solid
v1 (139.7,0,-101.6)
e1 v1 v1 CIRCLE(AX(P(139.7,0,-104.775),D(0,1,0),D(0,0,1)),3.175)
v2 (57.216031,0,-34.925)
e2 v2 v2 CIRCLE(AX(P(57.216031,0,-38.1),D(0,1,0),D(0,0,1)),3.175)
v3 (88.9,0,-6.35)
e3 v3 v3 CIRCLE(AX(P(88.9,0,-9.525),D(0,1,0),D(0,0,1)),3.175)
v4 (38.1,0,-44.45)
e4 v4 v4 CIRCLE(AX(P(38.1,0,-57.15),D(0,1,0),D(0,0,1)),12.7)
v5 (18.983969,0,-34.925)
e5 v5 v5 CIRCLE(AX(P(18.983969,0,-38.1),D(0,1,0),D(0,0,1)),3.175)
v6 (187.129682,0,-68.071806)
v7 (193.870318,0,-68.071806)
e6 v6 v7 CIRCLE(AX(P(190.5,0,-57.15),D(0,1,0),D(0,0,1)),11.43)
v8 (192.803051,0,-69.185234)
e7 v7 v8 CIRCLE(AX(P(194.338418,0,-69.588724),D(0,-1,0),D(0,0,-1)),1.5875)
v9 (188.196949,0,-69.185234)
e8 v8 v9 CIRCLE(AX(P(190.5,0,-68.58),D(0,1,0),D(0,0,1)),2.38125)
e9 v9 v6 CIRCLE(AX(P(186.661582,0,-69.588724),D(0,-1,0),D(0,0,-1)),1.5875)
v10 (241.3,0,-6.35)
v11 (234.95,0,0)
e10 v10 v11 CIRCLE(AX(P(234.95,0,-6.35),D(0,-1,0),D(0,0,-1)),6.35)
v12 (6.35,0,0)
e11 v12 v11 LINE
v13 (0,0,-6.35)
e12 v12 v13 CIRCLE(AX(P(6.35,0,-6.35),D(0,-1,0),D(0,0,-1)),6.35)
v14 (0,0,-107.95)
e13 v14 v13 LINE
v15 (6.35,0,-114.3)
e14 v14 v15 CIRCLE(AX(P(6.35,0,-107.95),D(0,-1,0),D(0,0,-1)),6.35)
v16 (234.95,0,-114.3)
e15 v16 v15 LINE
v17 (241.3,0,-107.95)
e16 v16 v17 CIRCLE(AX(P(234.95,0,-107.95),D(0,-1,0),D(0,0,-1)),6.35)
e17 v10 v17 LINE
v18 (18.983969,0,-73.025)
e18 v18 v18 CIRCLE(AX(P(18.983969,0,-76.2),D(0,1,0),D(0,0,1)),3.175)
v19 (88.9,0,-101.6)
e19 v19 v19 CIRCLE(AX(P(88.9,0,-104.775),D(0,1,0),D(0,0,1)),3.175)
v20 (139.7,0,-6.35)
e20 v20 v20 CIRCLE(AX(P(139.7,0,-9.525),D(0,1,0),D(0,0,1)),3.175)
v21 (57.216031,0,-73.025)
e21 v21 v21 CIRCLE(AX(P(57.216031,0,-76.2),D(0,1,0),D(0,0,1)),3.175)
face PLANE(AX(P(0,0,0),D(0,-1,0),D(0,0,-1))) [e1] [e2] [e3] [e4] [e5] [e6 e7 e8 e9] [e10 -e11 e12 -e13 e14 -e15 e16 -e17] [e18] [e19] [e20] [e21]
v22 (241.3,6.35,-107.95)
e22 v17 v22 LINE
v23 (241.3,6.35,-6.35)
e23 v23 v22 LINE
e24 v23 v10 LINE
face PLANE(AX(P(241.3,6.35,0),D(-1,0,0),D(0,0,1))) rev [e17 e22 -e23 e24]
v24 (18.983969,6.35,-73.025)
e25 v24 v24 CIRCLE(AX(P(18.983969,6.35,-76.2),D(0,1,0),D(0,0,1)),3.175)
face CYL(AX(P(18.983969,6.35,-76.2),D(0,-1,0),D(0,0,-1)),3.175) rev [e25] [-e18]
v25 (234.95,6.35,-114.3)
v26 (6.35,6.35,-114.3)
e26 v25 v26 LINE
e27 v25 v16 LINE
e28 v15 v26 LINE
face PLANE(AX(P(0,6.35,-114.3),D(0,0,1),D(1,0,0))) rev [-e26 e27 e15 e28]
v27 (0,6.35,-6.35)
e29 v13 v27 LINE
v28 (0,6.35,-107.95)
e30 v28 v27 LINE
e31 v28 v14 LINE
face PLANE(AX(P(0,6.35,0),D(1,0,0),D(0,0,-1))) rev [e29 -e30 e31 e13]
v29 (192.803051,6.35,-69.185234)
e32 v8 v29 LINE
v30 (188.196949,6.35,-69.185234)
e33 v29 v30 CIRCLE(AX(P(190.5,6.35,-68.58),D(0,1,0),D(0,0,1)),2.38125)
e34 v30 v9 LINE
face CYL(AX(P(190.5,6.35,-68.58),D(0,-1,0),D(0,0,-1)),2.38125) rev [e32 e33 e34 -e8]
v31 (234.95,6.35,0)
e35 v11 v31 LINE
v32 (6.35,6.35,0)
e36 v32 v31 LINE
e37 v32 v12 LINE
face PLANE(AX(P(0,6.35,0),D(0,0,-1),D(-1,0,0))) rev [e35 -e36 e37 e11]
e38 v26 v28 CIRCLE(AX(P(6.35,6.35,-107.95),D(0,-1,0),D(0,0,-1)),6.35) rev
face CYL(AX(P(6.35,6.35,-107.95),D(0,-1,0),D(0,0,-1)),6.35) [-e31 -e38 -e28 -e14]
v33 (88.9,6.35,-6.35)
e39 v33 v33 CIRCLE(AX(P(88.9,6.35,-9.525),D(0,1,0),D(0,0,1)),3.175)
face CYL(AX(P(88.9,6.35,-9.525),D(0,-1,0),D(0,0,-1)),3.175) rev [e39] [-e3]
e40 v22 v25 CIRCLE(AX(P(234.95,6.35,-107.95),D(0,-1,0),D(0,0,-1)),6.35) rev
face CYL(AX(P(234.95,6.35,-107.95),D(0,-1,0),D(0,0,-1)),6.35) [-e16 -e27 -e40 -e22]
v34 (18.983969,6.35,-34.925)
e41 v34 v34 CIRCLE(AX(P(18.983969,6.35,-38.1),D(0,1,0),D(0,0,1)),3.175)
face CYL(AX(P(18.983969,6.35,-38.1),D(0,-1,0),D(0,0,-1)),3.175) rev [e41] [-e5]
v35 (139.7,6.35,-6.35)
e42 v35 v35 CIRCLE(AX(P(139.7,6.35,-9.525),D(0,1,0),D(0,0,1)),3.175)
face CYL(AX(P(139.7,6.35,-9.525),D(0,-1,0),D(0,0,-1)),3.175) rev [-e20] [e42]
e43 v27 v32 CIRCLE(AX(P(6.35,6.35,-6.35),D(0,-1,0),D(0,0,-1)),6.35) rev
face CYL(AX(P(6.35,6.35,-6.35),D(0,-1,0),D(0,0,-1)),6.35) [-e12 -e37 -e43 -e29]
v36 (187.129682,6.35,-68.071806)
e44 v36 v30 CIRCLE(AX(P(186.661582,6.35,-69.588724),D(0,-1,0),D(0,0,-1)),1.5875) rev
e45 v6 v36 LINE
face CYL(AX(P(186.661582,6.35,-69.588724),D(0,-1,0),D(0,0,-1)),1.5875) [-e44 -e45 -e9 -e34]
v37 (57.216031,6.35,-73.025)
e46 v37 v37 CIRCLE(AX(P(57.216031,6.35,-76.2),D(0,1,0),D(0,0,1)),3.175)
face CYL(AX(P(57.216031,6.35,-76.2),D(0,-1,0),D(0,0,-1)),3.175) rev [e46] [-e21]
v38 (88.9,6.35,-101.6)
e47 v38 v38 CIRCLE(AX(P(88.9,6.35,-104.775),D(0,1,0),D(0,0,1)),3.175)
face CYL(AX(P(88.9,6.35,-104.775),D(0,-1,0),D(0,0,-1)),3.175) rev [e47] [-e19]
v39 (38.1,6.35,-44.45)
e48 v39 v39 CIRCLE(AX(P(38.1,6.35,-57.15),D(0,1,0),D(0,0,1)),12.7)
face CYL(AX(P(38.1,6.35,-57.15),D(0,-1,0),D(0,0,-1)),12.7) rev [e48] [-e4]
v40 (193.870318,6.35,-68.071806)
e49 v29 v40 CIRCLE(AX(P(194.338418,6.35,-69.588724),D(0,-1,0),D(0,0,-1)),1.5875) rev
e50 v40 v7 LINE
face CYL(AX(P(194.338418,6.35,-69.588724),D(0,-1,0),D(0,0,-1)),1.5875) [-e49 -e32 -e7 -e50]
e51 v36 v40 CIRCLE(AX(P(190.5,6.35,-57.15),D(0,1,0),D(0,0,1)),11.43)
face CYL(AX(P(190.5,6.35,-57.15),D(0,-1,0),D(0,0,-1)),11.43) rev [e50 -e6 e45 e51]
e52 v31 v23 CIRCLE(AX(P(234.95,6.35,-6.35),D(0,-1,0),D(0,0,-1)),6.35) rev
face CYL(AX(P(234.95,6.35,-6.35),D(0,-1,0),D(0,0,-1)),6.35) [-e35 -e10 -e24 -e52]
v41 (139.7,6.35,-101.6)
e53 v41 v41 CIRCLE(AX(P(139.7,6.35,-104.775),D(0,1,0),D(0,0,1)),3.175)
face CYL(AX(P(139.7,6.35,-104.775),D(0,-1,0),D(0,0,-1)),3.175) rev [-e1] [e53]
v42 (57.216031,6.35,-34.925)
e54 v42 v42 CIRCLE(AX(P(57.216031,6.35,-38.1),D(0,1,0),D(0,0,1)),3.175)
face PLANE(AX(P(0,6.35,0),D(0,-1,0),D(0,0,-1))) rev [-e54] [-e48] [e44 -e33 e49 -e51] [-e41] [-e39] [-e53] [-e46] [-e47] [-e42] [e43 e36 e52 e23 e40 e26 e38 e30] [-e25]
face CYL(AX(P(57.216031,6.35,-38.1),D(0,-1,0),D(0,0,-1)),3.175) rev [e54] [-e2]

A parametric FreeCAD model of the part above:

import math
import FreeCAD as App
import Part
import Sketcher
from FreeCAD import Vector
Q = App.Units.Quantity


def edges_at(feature, points):
    """Names of the edges that pass closest to the given points."""
    edges = feature.Shape.Edges
    near = lambda p: min(range(len(edges)), key=lambda i: edges[i].distToShape(Part.Vertex(*p))[0])
    return sorted({f"Edge{near(p) + 1}" for p in points})

doc = App.newDocument("Part")
params = doc.addObject("Spreadsheet::Sheet", "Params")
for row, (alias, value) in enumerate([
    ("sketch1_diameter", "1 in"),
    ("sketch1_diameter2", "0.25 in"),
    ("sketch1_radius", "0.45 in"),
    ("sketch1_width", "9.5 in"),
    ("sketch1_height", "4.5 in"),
    ("pad1_length", "0.25 in"),
    ("fillet_radius", "0.25 in"),
    ("fillet2_radius", "0.0625 in"),
], start=1):
    params.set(f"A{row}", alias)
    params.set(f"B{row}", "=" + value)
    params.setAlias(f"B{row}", alias)

body = doc.addObject("PartDesign::Body", "Body")

sketch1 = body.newObject("Sketcher::SketchObject", "Sketch")
sketch1.AttachmentSupport = (doc.getObject("XZ_Plane"), [""])
sketch1.MapMode = "FlatFace"
sketch1.addGeometry(Part.LineSegment(Vector(0, -114.3, 0), Vector(0, 0, 0)), False)
sketch1.addGeometry(Part.LineSegment(Vector(0, 0, 0), Vector(241.3, 0, 0)), False)
sketch1.addGeometry(Part.LineSegment(Vector(241.3, 0, 0), Vector(241.3, -114.3, 0)), False)
sketch1.addGeometry(Part.LineSegment(Vector(241.3, -114.3, 0), Vector(0, -114.3, 0)), False)
sketch1.addGeometry(Part.Circle(Vector(88.9, -9.5, 0), Vector(0, 0, 1), 3.2), False)
sketch1.addGeometry(Part.Circle(Vector(19, -38.1, 0), Vector(0, 0, 1), 3.2), False)
sketch1.addGeometry(Part.Circle(Vector(57.2, -38.1, 0), Vector(0, 0, 1), 3.2), False)
sketch1.addGeometry(Part.Circle(Vector(38.1, -57.1, 0), Vector(0, 0, 1), 12.7), False)
sketch1.addGeometry(Part.Circle(Vector(139.7, -9.5, 0), Vector(0, 0, 1), 3.2), False)
sketch1.addGeometry(Part.Circle(Vector(19, -76.2, 0), Vector(0, 0, 1), 3.2), False)
sketch1.addGeometry(Part.Circle(Vector(57.2, -76.2, 0), Vector(0, 0, 1), 3.2), False)
sketch1.addGeometry(Part.Circle(Vector(88.9, -104.8, 0), Vector(0, 0, 1), 3.2), False)
sketch1.addGeometry(Part.ArcOfCircle(Part.Circle(Vector(190.5, -57.1, 0), Vector(0, 0, 1), 11.4), math.radians(-78), math.radians(258)), False)
sketch1.addGeometry(Part.ArcOfCircle(Part.Circle(Vector(190.5, -68.6, 0), Vector(0, 0, 1), 2.4), math.radians(174), math.radians(366)), False)
sketch1.addGeometry(Part.Circle(Vector(139.7, -104.8, 0), Vector(0, 0, 1), 3.2), False)
sketch1.addConstraint(Sketcher.Constraint("Coincident", 0, 2, 1, 1))
sketch1.addConstraint(Sketcher.Constraint("Coincident", 1, 2, 2, 1))
sketch1.addConstraint(Sketcher.Constraint("Coincident", 2, 2, 3, 1))
sketch1.addConstraint(Sketcher.Constraint("Coincident", 3, 2, 0, 1))
sketch1.addConstraint(Sketcher.Constraint("Coincident", 12, 1, 13, 2))
sketch1.addConstraint(Sketcher.Constraint("Coincident", 13, 1, 12, 2))
sketch1.addConstraint(Sketcher.Constraint("Vertical", 0))
sketch1.addConstraint(Sketcher.Constraint("Horizontal", 1))
sketch1.addConstraint(Sketcher.Constraint("Vertical", 2))
sketch1.addConstraint(Sketcher.Constraint("Horizontal", 3))
sketch1.addConstraint(Sketcher.Constraint("Coincident", 0, 2, -1, 1))
sketch1.addConstraint(Sketcher.Constraint("Equal", 4, 5))
sketch1.addConstraint(Sketcher.Constraint("Equal", 5, 6))
sketch1.addConstraint(Sketcher.Constraint("Equal", 6, 8))
sketch1.addConstraint(Sketcher.Constraint("Equal", 8, 9))
sketch1.addConstraint(Sketcher.Constraint("Equal", 9, 10))
sketch1.addConstraint(Sketcher.Constraint("Equal", 10, 11))
sketch1.addConstraint(Sketcher.Constraint("Equal", 11, 14))
sketch1.addConstraint(Sketcher.Constraint("Horizontal", 5, 3, 6, 3))
sketch1.addConstraint(Sketcher.Constraint("Horizontal", 4, 3, 8, 3))
sketch1.addConstraint(Sketcher.Constraint("Horizontal", 9, 3, 10, 3))
sketch1.addConstraint(Sketcher.Constraint("Horizontal", 7, 3, 12, 3))
sketch1.addConstraint(Sketcher.Constraint("Horizontal", 11, 3, 14, 3))
sketch1.addConstraint(Sketcher.Constraint("Horizontal", 12, 1, 13, 1))
sketch1.addConstraint(Sketcher.Constraint("Vertical", 5, 3, 9, 3))
sketch1.addConstraint(Sketcher.Constraint("Vertical", 6, 3, 10, 3))
sketch1.addConstraint(Sketcher.Constraint("Vertical", 4, 3, 11, 3))
sketch1.addConstraint(Sketcher.Constraint("Vertical", 8, 3, 14, 3))
sketch1.addConstraint(Sketcher.Constraint("Diameter", 7, Q("1 in")))
sketch1.addConstraint(Sketcher.Constraint("Diameter", 4, Q("0.25 in")))
sketch1.addConstraint(Sketcher.Constraint("Radius", 12, Q("0.45 in")))
sketch1.addConstraint(Sketcher.Constraint("DistanceX", 1, 1, 1, 2, Q("9.5 in")))
sketch1.addConstraint(Sketcher.Constraint("DistanceY", 0, 1, 0, 2, Q("4.5 in")))
sketch1.addConstraint(Sketcher.Constraint("DistanceY", 9, 3, -1, 1, Q("3 in")))
sketch1.addConstraint(Sketcher.Constraint("Radius", 13, Q("0.09375 in")))
sketch1.addConstraint(Sketcher.Constraint("DistanceX", 7, 3, 4, 3, Q("2 in")))
sketch1.addConstraint(Sketcher.Constraint("DistanceX", 4, 3, 8, 3, Q("2 in")))
sketch1.addConstraint(Sketcher.Constraint("DistanceX", 8, 3, 12, 3, Q("2 in")))
sketch1.addConstraint(Sketcher.Constraint("DistanceX", 12, 3, 1, 2, Q("2 in")))
sketch1.addConstraint(Sketcher.Constraint("DistanceY", 3, 2, 5, 3, Q("3 in")))
sketch1.addConstraint(Sketcher.Constraint("DistanceY", 13, 3, -1, 1, Q("2.7 in")))
sketch1.addConstraint(Sketcher.Constraint("DistanceY", 7, 3, -1, 1, Q("2.25 in")))
sketch1.addConstraint(Sketcher.Constraint("DistanceY", 11, 3, 4, 3, Q("3.75 in")))
sketch1.addConstraint(Sketcher.Constraint("DistanceY", 4, 3, -1, 1, Q("0.375 in")))
sketch1.addConstraint(Sketcher.Constraint("DistanceX", -1, 1, 5, 3, 18.983969))
sketch1.addConstraint(Sketcher.Constraint("DistanceX", -1, 1, 6, 3, 57.216031))
sketch1.setExpression("Constraints[28]", "Params.sketch1_diameter")
sketch1.setExpression("Constraints[29]", "Params.sketch1_diameter2")
sketch1.setExpression("Constraints[30]", "Params.sketch1_radius")
sketch1.setExpression("Constraints[31]", "Params.sketch1_width")
sketch1.setExpression("Constraints[32]", "Params.sketch1_height")
pad1 = body.newObject("PartDesign::Pad", "Pad")
pad1.Profile = sketch1
pad1.setExpression("Length", "Params.pad1_length")
pad1.Reversed = True
doc.recompute()

fillet = body.newObject("PartDesign::Fillet", "Fillet")
fillet.Base = (pad1, edges_at(pad1, [
    (0, 3.175, -114.3),
    (241.3, 3.175, -114.3),
    (241.3, 3.175, 0),
    (0, 3.175, 0),
]))
fillet.setExpression("Radius", "Params.fillet_radius")
doc.recompute()

fillet2 = body.newObject("PartDesign::Fillet", "Fillet001")
fillet2.Base = (fillet, edges_at(fillet, [(192.868, 3.175, -68.332), (188.132, 3.175, -68.332)]))
fillet2.setExpression("Radius", "Params.fillet2_radius")

doc.recompute()
